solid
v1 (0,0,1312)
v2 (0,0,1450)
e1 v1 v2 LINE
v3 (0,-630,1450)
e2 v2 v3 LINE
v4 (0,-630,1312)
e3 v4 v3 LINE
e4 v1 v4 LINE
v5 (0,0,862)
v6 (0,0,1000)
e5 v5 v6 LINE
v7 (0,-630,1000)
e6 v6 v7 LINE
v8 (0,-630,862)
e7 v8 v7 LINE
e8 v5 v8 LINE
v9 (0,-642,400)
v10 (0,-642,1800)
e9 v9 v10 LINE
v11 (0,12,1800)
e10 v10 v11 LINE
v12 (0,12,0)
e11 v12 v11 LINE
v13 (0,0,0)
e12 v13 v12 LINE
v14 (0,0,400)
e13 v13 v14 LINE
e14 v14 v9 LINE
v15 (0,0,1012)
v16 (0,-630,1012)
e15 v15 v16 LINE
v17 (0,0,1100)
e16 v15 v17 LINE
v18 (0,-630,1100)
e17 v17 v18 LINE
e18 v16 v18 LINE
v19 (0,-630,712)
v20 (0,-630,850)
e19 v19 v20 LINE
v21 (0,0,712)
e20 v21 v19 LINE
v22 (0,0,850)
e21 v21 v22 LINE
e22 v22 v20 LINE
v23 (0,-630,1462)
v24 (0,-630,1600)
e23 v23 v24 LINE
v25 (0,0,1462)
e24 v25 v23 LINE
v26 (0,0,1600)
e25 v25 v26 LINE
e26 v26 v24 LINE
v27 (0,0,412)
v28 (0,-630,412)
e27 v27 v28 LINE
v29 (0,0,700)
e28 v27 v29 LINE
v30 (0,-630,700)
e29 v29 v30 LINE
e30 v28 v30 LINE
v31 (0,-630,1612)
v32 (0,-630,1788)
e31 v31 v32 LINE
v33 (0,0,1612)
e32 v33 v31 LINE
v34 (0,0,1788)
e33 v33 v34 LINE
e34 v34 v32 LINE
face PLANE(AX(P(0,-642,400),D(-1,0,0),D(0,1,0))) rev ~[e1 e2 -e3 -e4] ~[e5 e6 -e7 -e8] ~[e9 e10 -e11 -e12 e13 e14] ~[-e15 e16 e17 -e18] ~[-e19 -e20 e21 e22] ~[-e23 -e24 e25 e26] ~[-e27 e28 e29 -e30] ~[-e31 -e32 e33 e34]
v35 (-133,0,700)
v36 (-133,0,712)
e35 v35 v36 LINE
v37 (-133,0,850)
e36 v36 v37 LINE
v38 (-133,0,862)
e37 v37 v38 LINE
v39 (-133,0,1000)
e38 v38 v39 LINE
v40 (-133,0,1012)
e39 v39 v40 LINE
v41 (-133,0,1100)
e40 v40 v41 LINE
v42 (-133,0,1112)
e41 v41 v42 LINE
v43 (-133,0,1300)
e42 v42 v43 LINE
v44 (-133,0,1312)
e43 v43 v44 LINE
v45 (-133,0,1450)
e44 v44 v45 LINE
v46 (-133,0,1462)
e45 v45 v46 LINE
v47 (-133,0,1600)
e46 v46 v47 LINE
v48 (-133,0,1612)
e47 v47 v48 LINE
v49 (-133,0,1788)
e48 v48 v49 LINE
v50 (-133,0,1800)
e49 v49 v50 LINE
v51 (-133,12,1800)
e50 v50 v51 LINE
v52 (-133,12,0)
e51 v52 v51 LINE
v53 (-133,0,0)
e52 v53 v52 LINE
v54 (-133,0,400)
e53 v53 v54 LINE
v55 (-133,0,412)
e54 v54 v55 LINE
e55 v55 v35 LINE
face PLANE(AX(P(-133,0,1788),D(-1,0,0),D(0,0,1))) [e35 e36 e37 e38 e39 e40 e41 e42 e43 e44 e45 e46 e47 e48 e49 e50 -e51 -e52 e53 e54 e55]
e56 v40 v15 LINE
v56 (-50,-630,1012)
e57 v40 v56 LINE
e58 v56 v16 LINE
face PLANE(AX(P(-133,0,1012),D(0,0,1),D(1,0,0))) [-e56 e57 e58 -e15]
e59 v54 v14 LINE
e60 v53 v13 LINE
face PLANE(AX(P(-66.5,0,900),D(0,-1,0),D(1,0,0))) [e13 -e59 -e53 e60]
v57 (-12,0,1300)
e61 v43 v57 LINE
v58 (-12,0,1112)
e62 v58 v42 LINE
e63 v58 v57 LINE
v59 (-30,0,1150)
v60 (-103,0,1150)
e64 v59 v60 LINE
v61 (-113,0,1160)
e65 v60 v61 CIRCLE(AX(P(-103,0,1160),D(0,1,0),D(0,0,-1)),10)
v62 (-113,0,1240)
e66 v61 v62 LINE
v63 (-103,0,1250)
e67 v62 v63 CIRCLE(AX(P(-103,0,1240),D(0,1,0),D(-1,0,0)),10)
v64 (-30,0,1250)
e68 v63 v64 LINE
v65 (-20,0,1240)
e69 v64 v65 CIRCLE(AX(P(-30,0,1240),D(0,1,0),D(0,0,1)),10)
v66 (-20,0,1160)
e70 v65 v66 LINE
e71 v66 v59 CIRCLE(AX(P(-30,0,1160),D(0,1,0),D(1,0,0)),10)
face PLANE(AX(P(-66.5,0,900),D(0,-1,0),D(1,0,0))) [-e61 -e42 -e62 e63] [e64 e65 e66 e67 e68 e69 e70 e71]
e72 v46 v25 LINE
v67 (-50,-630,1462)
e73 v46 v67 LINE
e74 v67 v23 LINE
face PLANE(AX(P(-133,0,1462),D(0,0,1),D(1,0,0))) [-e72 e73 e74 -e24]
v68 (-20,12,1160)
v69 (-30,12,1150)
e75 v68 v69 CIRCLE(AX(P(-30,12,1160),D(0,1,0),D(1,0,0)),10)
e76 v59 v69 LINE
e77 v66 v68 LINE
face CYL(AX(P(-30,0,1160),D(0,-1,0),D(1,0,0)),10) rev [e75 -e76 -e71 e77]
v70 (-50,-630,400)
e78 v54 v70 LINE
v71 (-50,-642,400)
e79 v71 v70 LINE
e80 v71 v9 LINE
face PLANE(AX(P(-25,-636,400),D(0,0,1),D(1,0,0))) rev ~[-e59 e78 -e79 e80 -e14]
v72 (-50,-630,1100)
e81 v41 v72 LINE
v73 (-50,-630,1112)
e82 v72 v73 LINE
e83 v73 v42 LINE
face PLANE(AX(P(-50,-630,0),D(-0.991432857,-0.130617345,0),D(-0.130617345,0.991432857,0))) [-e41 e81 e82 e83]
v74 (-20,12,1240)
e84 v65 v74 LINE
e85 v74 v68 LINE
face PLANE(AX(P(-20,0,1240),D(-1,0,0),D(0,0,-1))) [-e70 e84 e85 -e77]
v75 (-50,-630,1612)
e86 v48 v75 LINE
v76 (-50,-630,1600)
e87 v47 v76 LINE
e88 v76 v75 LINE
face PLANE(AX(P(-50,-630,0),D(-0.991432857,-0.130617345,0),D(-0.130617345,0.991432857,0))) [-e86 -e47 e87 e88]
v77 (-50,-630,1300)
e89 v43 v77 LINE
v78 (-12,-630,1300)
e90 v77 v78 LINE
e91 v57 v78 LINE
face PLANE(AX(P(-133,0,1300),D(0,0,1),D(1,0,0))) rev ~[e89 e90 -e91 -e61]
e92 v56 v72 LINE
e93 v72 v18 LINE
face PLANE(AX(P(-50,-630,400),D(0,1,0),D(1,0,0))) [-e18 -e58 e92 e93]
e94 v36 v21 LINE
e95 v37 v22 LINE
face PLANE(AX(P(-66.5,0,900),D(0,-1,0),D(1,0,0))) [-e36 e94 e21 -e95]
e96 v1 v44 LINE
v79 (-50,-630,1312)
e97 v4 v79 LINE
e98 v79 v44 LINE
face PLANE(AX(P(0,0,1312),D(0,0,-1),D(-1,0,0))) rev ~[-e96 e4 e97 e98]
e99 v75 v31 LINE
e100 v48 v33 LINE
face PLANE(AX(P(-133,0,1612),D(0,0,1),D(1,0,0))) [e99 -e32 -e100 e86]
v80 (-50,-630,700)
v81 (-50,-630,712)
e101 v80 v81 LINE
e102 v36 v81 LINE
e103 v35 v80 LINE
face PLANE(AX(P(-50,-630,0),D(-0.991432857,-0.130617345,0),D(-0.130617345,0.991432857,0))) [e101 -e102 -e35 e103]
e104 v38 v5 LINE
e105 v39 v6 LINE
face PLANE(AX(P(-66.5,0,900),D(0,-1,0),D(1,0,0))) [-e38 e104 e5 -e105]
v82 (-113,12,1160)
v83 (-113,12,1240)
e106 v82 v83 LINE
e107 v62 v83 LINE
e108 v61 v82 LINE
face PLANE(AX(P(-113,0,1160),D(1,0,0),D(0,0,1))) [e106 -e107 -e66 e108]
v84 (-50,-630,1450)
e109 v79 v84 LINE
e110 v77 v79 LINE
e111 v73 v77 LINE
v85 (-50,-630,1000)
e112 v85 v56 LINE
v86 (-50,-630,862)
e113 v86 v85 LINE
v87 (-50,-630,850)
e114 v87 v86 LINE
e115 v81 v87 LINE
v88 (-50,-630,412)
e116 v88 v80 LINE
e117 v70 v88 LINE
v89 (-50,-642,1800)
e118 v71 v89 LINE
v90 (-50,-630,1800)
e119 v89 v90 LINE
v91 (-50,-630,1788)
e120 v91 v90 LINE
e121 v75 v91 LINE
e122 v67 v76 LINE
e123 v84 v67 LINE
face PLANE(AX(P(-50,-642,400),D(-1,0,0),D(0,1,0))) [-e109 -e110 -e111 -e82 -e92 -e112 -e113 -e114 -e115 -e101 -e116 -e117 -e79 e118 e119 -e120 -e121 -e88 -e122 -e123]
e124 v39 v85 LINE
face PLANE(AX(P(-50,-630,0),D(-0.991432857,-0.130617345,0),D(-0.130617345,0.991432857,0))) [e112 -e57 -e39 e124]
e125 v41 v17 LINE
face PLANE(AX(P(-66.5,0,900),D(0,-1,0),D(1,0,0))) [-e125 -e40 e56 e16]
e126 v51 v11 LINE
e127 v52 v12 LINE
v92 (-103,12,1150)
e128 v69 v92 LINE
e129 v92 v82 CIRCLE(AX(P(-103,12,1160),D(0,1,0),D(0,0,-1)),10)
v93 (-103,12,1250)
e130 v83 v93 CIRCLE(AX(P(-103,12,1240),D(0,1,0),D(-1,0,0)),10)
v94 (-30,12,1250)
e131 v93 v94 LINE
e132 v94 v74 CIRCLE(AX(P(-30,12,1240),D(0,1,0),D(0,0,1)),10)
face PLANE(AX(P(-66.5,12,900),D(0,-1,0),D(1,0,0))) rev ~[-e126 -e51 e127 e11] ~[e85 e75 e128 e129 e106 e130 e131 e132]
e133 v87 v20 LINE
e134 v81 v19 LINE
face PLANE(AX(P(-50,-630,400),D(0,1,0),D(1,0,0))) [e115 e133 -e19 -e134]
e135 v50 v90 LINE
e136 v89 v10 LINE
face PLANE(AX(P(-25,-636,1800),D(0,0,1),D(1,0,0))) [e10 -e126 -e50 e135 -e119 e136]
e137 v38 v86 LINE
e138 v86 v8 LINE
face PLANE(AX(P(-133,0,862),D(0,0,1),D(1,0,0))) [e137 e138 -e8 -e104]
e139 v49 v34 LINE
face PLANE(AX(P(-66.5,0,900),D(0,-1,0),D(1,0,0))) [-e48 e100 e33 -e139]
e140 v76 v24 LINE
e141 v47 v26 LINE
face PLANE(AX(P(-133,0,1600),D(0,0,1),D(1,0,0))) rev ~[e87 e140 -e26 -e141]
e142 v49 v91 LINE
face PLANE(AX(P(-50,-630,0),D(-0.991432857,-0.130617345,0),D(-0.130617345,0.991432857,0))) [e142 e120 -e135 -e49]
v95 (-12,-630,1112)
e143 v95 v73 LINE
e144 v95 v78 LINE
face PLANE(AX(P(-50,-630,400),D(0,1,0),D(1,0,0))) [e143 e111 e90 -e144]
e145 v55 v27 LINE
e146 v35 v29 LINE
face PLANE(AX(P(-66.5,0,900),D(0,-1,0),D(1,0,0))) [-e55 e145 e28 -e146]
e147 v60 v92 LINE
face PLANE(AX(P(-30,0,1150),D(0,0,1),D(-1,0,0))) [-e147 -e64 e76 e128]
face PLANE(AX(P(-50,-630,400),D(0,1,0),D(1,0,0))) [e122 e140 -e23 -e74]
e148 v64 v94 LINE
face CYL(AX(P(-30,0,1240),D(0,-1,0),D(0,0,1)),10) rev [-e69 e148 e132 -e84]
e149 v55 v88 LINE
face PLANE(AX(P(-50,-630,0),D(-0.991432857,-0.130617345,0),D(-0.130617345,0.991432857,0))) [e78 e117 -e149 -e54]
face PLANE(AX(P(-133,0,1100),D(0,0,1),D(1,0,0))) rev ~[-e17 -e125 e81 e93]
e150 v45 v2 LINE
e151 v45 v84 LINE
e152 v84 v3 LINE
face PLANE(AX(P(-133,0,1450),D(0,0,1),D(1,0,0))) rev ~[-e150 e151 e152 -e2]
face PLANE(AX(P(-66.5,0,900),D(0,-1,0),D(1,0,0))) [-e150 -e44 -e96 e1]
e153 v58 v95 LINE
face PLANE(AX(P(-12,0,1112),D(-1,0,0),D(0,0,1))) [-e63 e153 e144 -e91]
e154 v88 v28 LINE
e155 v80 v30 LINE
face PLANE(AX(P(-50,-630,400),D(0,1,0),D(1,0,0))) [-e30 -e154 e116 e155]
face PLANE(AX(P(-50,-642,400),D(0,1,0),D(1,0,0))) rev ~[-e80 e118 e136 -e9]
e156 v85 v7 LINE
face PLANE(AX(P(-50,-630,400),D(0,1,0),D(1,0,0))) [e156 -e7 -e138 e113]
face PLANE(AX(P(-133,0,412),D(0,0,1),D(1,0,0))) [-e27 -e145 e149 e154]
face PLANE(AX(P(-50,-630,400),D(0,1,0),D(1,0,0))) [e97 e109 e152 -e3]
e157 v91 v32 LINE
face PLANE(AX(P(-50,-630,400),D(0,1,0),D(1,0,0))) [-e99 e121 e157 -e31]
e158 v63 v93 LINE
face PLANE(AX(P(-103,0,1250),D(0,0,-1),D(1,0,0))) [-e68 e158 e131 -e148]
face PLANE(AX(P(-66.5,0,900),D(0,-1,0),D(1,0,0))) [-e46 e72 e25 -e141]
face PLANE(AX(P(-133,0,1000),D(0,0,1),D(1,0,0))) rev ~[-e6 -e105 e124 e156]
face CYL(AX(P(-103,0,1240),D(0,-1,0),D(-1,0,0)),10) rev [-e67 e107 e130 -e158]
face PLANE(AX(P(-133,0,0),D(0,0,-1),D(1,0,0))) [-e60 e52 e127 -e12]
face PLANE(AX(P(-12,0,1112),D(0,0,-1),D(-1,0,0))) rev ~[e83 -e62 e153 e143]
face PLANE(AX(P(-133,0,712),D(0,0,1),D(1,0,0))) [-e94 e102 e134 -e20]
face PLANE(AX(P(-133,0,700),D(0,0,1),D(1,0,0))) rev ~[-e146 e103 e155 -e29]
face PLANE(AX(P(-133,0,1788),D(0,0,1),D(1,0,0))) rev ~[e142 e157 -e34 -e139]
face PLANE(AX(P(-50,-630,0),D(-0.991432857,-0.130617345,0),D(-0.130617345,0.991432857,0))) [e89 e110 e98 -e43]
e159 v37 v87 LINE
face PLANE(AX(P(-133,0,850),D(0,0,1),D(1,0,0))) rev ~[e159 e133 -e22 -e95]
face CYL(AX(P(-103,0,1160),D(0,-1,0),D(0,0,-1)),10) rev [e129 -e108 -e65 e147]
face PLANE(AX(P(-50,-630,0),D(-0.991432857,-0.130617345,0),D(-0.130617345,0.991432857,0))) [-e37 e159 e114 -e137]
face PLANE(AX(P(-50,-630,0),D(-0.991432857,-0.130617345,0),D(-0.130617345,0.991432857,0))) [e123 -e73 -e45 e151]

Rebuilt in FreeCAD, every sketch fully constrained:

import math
import FreeCAD as App
import Part
import Sketcher
from FreeCAD import Vector

doc = App.newDocument("Part")
body = doc.addObject("PartDesign::Body", "Body")

# Sketch on XZ plane
sketch1 = doc.addObject("Sketcher::SketchObject", "Sketch")
body.addObject(sketch1)
sketch1.AttachmentSupport = (doc.XZ_Plane, [""])
sketch1.MapMode = "FlatFace"
sketch1.addGeometry([
    Part.LineSegment(Vector(-133, 1800, 0), Vector(-133, 0, 0)),  # 0
    Part.LineSegment(Vector(-133, 0, 0), Vector(0, 0, 0)),  # 1
    Part.LineSegment(Vector(0, 0, 0), Vector(0, 1800, 0)),  # 2
    Part.LineSegment(Vector(0, 1800, 0), Vector(-133, 1800, 0)),  # 3
    Part.ArcOfCircle(Part.Circle(Vector(-30, 1160, 0), Vector(0, 0, 1), 10), math.radians(-90), math.radians(0)),  # 4
    Part.LineSegment(Vector(-30, 1150, 0), Vector(-103, 1150, 0)),  # 5
    Part.ArcOfCircle(Part.Circle(Vector(-103, 1160, 0), Vector(0, 0, 1), 10), math.radians(180), math.radians(270)),  # 6
    Part.LineSegment(Vector(-113, 1160, 0), Vector(-113, 1240, 0)),  # 7
    Part.ArcOfCircle(Part.Circle(Vector(-103, 1240, 0), Vector(0, 0, 1), 10), math.radians(90), math.radians(180)),  # 8
    Part.LineSegment(Vector(-103, 1250, 0), Vector(-30, 1250, 0)),  # 9
    Part.ArcOfCircle(Part.Circle(Vector(-30, 1240, 0), Vector(0, 0, 1), 10), math.radians(0), math.radians(90)),  # 10
    Part.LineSegment(Vector(-20, 1240, 0), Vector(-20, 1160, 0)),  # 11
], False)
sketch1.addConstraint([
    Sketcher.Constraint("Coincident", 0, 2, 1, 1),
    Sketcher.Constraint("Coincident", 1, 2, 2, 1),
    Sketcher.Constraint("Coincident", 2, 2, 3, 1),
    Sketcher.Constraint("Coincident", 3, 2, 0, 1),
    Sketcher.Constraint("Tangent", 4, 1, 5, 1),
    Sketcher.Constraint("Tangent", 5, 2, 6, 2),
    Sketcher.Constraint("Tangent", 6, 1, 7, 1),
    Sketcher.Constraint("Tangent", 7, 2, 8, 2),
    Sketcher.Constraint("Tangent", 8, 1, 9, 1),
    Sketcher.Constraint("Tangent", 9, 2, 10, 2),
    Sketcher.Constraint("Tangent", 10, 1, 11, 1),
    Sketcher.Constraint("Tangent", 11, 2, 4, 2),
    Sketcher.Constraint("Vertical", 0),
    Sketcher.Constraint("Horizontal", 1),
    Sketcher.Constraint("Vertical", 2),
    Sketcher.Constraint("Horizontal", 3),
    Sketcher.Constraint("Horizontal", 5),
    Sketcher.Constraint("Vertical", 7),
    Sketcher.Constraint("Horizontal", 9),
    Sketcher.Constraint("Vertical", 11),
    Sketcher.Constraint("Coincident", 1, 2, -1, 1),
    Sketcher.Constraint("Equal", 4, 6),
    Sketcher.Constraint("Equal", 6, 8),
    Sketcher.Constraint("Equal", 8, 10),
    Sketcher.Constraint("Radius", 4, 10.0),
    Sketcher.Constraint("DistanceX", 1, 1, 1, 2, 133.0),
    Sketcher.Constraint("DistanceX", 5, 2, 5, 1, 73.0),
    Sketcher.Constraint("DistanceY", 0, 2, 0, 1, 1800.0),
    Sketcher.Constraint("DistanceY", 7, 1, 7, 2, 80.0),
    Sketcher.Constraint("DistanceX", 4, 3, -1, 1, 30.0),
    Sketcher.Constraint("DistanceY", -1, 1, 4, 3, 1160.0),
])
pad1 = doc.addObject("PartDesign::Pad", "Pad")
body.addObject(pad1)
pad1.Profile = sketch1
pad1.Length = 12
pad1.Reversed = True

# Sketch on XZ plane
sketch2 = doc.addObject("Sketcher::SketchObject", "Sketch001")
body.addObject(sketch2)
sketch2.AttachmentSupport = (doc.XZ_Plane, [""])
sketch2.MapMode = "FlatFace"
sketch2.addGeometry([
    Part.LineSegment(Vector(-133, 412, 0), Vector(-133, 400, 0)),  # 0
    Part.LineSegment(Vector(-133, 400, 0), Vector(0, 400, 0)),  # 1
    Part.LineSegment(Vector(0, 400, 0), Vector(0, 412, 0)),  # 2
    Part.LineSegment(Vector(0, 412, 0), Vector(-133, 412, 0)),  # 3
    Part.LineSegment(Vector(-133, 862, 0), Vector(-133, 850, 0)),  # 4
    Part.LineSegment(Vector(-133, 850, 0), Vector(0, 850, 0)),  # 5
    Part.LineSegment(Vector(0, 850, 0), Vector(0, 862, 0)),  # 6
    Part.LineSegment(Vector(0, 862, 0), Vector(-133, 862, 0)),  # 7
    Part.LineSegment(Vector(-133, 712, 0), Vector(-133, 700, 0)),  # 8
    Part.LineSegment(Vector(-133, 700, 0), Vector(0, 700, 0)),  # 9
    Part.LineSegment(Vector(0, 700, 0), Vector(0, 712, 0)),  # 10
    Part.LineSegment(Vector(0, 712, 0), Vector(-133, 712, 0)),  # 11
    Part.LineSegment(Vector(-133, 1012, 0), Vector(-133, 1000, 0)),  # 12
    Part.LineSegment(Vector(-133, 1000, 0), Vector(0, 1000, 0)),  # 13
    Part.LineSegment(Vector(0, 1000, 0), Vector(0, 1012, 0)),  # 14
    Part.LineSegment(Vector(0, 1012, 0), Vector(-133, 1012, 0)),  # 15
    Part.LineSegment(Vector(-12, 1300, 0), Vector(-12, 1112, 0)),  # 16
    Part.LineSegment(Vector(-12, 1112, 0), Vector(-133, 1112, 0)),  # 17
    Part.LineSegment(Vector(-133, 1112, 0), Vector(-133, 1100, 0)),  # 18
    Part.LineSegment(Vector(-133, 1100, 0), Vector(0, 1100, 0)),  # 19
    Part.LineSegment(Vector(0, 1100, 0), Vector(0, 1312, 0)),  # 20
    Part.LineSegment(Vector(0, 1312, 0), Vector(-133, 1312, 0)),  # 21
    Part.LineSegment(Vector(-133, 1312, 0), Vector(-133, 1300, 0)),  # 22
    Part.LineSegment(Vector(-133, 1300, 0), Vector(-12, 1300, 0)),  # 23
    Part.LineSegment(Vector(-133, 1462, 0), Vector(-133, 1450, 0)),  # 24
    Part.LineSegment(Vector(-133, 1450, 0), Vector(0, 1450, 0)),  # 25
    Part.LineSegment(Vector(0, 1450, 0), Vector(0, 1462, 0)),  # 26
    Part.LineSegment(Vector(0, 1462, 0), Vector(-133, 1462, 0)),  # 27
    Part.LineSegment(Vector(-133, 1612, 0), Vector(-133, 1600, 0)),  # 28
    Part.LineSegment(Vector(-133, 1600, 0), Vector(0, 1600, 0)),  # 29
    Part.LineSegment(Vector(0, 1600, 0), Vector(0, 1612, 0)),  # 30
    Part.LineSegment(Vector(0, 1612, 0), Vector(-133, 1612, 0)),  # 31
    Part.LineSegment(Vector(-133, 1800, 0), Vector(-133, 1788, 0)),  # 32
    Part.LineSegment(Vector(-133, 1788, 0), Vector(0, 1788, 0)),  # 33
    Part.LineSegment(Vector(0, 1788, 0), Vector(0, 1800, 0)),  # 34
    Part.LineSegment(Vector(0, 1800, 0), Vector(-133, 1800, 0)),  # 35
], False)
sketch2.addConstraint([
    Sketcher.Constraint("Coincident", 0, 2, 1, 1),
    Sketcher.Constraint("Coincident", 1, 2, 2, 1),
    Sketcher.Constraint("Coincident", 2, 2, 3, 1),
    Sketcher.Constraint("Coincident", 3, 2, 0, 1),
    Sketcher.Constraint("Coincident", 4, 2, 5, 1),
    Sketcher.Constraint("Coincident", 5, 2, 6, 1),
    Sketcher.Constraint("Coincident", 6, 2, 7, 1),
    Sketcher.Constraint("Coincident", 7, 2, 4, 1),
    Sketcher.Constraint("Coincident", 8, 2, 9, 1),
    Sketcher.Constraint("Coincident", 9, 2, 10, 1),
    Sketcher.Constraint("Coincident", 10, 2, 11, 1),
    Sketcher.Constraint("Coincident", 11, 2, 8, 1),
    Sketcher.Constraint("Coincident", 12, 2, 13, 1),
    Sketcher.Constraint("Coincident", 13, 2, 14, 1),
    Sketcher.Constraint("Coincident", 14, 2, 15, 1),
    Sketcher.Constraint("Coincident", 15, 2, 12, 1),
    Sketcher.Constraint("Coincident", 16, 2, 17, 1),
    Sketcher.Constraint("Coincident", 17, 2, 18, 1),
    Sketcher.Constraint("Coincident", 18, 2, 19, 1),
    Sketcher.Constraint("Coincident", 19, 2, 20, 1),
    Sketcher.Constraint("Coincident", 20, 2, 21, 1),
    Sketcher.Constraint("Coincident", 21, 2, 22, 1),
    Sketcher.Constraint("Coincident", 22, 2, 23, 1),
    Sketcher.Constraint("Coincident", 23, 2, 16, 1),
    Sketcher.Constraint("Coincident", 24, 2, 25, 1),
    Sketcher.Constraint("Coincident", 25, 2, 26, 1),
    Sketcher.Constraint("Coincident", 26, 2, 27, 1),
    Sketcher.Constraint("Coincident", 27, 2, 24, 1),
    Sketcher.Constraint("Coincident", 28, 2, 29, 1),
    Sketcher.Constraint("Coincident", 29, 2, 30, 1),
    Sketcher.Constraint("Coincident", 30, 2, 31, 1),
    Sketcher.Constraint("Coincident", 31, 2, 28, 1),
    Sketcher.Constraint("Coincident", 32, 2, 33, 1),
    Sketcher.Constraint("Coincident", 33, 2, 34, 1),
    Sketcher.Constraint("Coincident", 34, 2, 35, 1),
    Sketcher.Constraint("Coincident", 35, 2, 32, 1),
    Sketcher.Constraint("Vertical", 0),
    Sketcher.Constraint("Horizontal", 1),
    Sketcher.Constraint("Vertical", 2),
    Sketcher.Constraint("Horizontal", 3),
    Sketcher.Constraint("Vertical", 4),
    Sketcher.Constraint("Horizontal", 5),
    Sketcher.Constraint("Vertical", 6),
    Sketcher.Constraint("Horizontal", 7),
    Sketcher.Constraint("Vertical", 8),
    Sketcher.Constraint("Horizontal", 9),
    Sketcher.Constraint("Vertical", 10),
    Sketcher.Constraint("Horizontal", 11),
    Sketcher.Constraint("Vertical", 12),
    Sketcher.Constraint("Horizontal", 13),
    Sketcher.Constraint("Vertical", 14),
    Sketcher.Constraint("Horizontal", 15),
    Sketcher.Constraint("Vertical", 16),
    Sketcher.Constraint("Horizontal", 17),
    Sketcher.Constraint("Vertical", 18),
    Sketcher.Constraint("Horizontal", 19),
    Sketcher.Constraint("Vertical", 20),
    Sketcher.Constraint("Horizontal", 21),
    Sketcher.Constraint("Vertical", 22),
    Sketcher.Constraint("Horizontal", 23),
    Sketcher.Constraint("Vertical", 24),
    Sketcher.Constraint("Horizontal", 25),
    Sketcher.Constraint("Vertical", 26),
    Sketcher.Constraint("Horizontal", 27),
    Sketcher.Constraint("Vertical", 28),
    Sketcher.Constraint("Horizontal", 29),
    Sketcher.Constraint("Vertical", 30),
    Sketcher.Constraint("Horizontal", 31),
    Sketcher.Constraint("Vertical", 32),
    Sketcher.Constraint("Horizontal", 33),
    Sketcher.Constraint("Vertical", 34),
    Sketcher.Constraint("Horizontal", 35),
    Sketcher.Constraint("PointOnObject", 1, 2, -2),
    Sketcher.Constraint("PointOnObject", 5, 2, -2),
    Sketcher.Constraint("PointOnObject", 9, 2, -2),
    Sketcher.Constraint("PointOnObject", 13, 2, -2),
    Sketcher.Constraint("PointOnObject", 19, 2, -2),
    Sketcher.Constraint("PointOnObject", 25, 2, -2),
    Sketcher.Constraint("PointOnObject", 29, 2, -2),
    Sketcher.Constraint("PointOnObject", 33, 2, -2),
    Sketcher.Constraint("Vertical", 3, 2, 4, 2),
    Sketcher.Constraint("Vertical", 7, 2, 8, 2),
    Sketcher.Constraint("Vertical", 11, 2, 12, 2),
    Sketcher.Constraint("Vertical", 15, 2, 17, 2),
    Sketcher.Constraint("Vertical", 18, 2, 21, 2),
    Sketcher.Constraint("Vertical", 22, 2, 24, 2),
    Sketcher.Constraint("Vertical", 27, 2, 28, 2),
    Sketcher.Constraint("Vertical", 31, 2, 32, 2),
    Sketcher.Constraint("Equal", 2, 4),
    Sketcher.Constraint("Equal", 6, 8),
    Sketcher.Constraint("Equal", 10, 12),
    Sketcher.Constraint("Equal", 14, 18),
    Sketcher.Constraint("Equal", 18, 22),
    Sketcher.Constraint("Equal", 22, 24),
    Sketcher.Constraint("Equal", 26, 28),
    Sketcher.Constraint("Equal", 30, 32),
    Sketcher.Constraint("DistanceX", 1, 1, 1, 2, 133.0),
    Sketcher.Constraint("DistanceX", 17, 2, 17, 1, 121.0),
    Sketcher.Constraint("DistanceY", 0, 2, 0, 1, 12.0),
    Sketcher.Constraint("DistanceY", 16, 2, 16, 1, 188.0),
    Sketcher.Constraint("DistanceY", -1, 1, 0, 2, 400.0),
    Sketcher.Constraint("DistanceY", -1, 1, 4, 2, 850.0),
    Sketcher.Constraint("DistanceY", -1, 1, 8, 2, 700.0),
    Sketcher.Constraint("DistanceY", -1, 1, 12, 2, 1000.0),
    Sketcher.Constraint("DistanceY", -1, 1, 16, 2, 1112.0),
    Sketcher.Constraint("DistanceY", -1, 1, 24, 2, 1450.0),
    Sketcher.Constraint("DistanceY", -1, 1, 28, 2, 1600.0),
    Sketcher.Constraint("DistanceY", -1, 1, 32, 2, 1788.0),
])
pad2 = doc.addObject("PartDesign::Pad", "Pad001")
body.addObject(pad2)
pad2.Profile = sketch2
pad2.Length = 630

# Sketch on XY plane
sketch3 = doc.addObject("Sketcher::SketchObject", "Sketch002")
body.addObject(sketch3)
sketch3.AttachmentSupport = (doc.XY_Plane, [""])
sketch3.MapMode = "FlatFace"
sketch3.addGeometry([
    Part.LineSegment(Vector(-50, -630, 0), Vector(-133, 0, 0)),
    Part.LineSegment(Vector(-133, 0, 0), Vector(-133, -630, 0)),
    Part.LineSegment(Vector(-133, -630, 0), Vector(-50, -630, 0)),
], False)
sketch3.addConstraint([
    Sketcher.Constraint("Coincident", 0, 2, 1, 1),
    Sketcher.Constraint("Coincident", 1, 2, 2, 1),
    Sketcher.Constraint("Coincident", 2, 2, 0, 1),
    Sketcher.Constraint("Vertical", 1),
    Sketcher.Constraint("Horizontal", 2),
    Sketcher.Constraint("PointOnObject", 0, 2, -1),
    Sketcher.Constraint("DistanceX", 2, 1, 2, 2, 83.0),
    Sketcher.Constraint("DistanceY", 1, 2, 1, 1, 630.0),
    Sketcher.Constraint("DistanceX", 0, 2, -1, 1, 133.0),
])
pocket1 = doc.addObject("PartDesign::Pocket", "Pocket")
body.addObject(pocket1)
pocket1.Profile = sketch3
pocket1.Type = "ThroughAll"
pocket1.Reversed = True

# Sketch on XY plane
sketch4 = doc.addObject("Sketcher::SketchObject", "Sketch003")
body.addObject(sketch4)
sketch4.AttachmentSupport = (doc.XY_Plane, [""])
sketch4.MapMode = "FlatFace"
sketch4.AttachmentOffset = App.Placement(Vector(0, 0, 400), App.Rotation())
sketch4.addGeometry([
    Part.LineSegment(Vector(-50, -630, 0), Vector(-50, -642, 0)),
    Part.LineSegment(Vector(-50, -642, 0), Vector(0, -642, 0)),
    Part.LineSegment(Vector(0, -642, 0), Vector(0, -630, 0)),
    Part.LineSegment(Vector(0, -630, 0), Vector(-50, -630, 0)),
], False)
sketch4.addConstraint([
    Sketcher.Constraint("Coincident", 0, 2, 1, 1),
    Sketcher.Constraint("Coincident", 1, 2, 2, 1),
    Sketcher.Constraint("Coincident", 2, 2, 3, 1),
    Sketcher.Constraint("Coincident", 3, 2, 0, 1),
    Sketcher.Constraint("Vertical", 0),
    Sketcher.Constraint("Horizontal", 1),
    Sketcher.Constraint("Vertical", 2),
    Sketcher.Constraint("Horizontal", 3),
    Sketcher.Constraint("PointOnObject", 1, 2, -2),
    Sketcher.Constraint("DistanceX", 1, 1, 1, 2, 50.0),
    Sketcher.Constraint("DistanceY", 0, 2, 0, 1, 12.0),
    Sketcher.Constraint("DistanceY", 0, 2, -1, 1, 642.0),
])
pad3 = doc.addObject("PartDesign::Pad", "Pad002")
body.addObject(pad3)
pad3.Profile = sketch4
pad3.Length = 1400
body2 = doc.addObject("PartDesign::Body", "Body001")
doc.recompute()

body2.BaseFeature = body
doc.recompute()
body.Visibility = False

doc.recompute()
